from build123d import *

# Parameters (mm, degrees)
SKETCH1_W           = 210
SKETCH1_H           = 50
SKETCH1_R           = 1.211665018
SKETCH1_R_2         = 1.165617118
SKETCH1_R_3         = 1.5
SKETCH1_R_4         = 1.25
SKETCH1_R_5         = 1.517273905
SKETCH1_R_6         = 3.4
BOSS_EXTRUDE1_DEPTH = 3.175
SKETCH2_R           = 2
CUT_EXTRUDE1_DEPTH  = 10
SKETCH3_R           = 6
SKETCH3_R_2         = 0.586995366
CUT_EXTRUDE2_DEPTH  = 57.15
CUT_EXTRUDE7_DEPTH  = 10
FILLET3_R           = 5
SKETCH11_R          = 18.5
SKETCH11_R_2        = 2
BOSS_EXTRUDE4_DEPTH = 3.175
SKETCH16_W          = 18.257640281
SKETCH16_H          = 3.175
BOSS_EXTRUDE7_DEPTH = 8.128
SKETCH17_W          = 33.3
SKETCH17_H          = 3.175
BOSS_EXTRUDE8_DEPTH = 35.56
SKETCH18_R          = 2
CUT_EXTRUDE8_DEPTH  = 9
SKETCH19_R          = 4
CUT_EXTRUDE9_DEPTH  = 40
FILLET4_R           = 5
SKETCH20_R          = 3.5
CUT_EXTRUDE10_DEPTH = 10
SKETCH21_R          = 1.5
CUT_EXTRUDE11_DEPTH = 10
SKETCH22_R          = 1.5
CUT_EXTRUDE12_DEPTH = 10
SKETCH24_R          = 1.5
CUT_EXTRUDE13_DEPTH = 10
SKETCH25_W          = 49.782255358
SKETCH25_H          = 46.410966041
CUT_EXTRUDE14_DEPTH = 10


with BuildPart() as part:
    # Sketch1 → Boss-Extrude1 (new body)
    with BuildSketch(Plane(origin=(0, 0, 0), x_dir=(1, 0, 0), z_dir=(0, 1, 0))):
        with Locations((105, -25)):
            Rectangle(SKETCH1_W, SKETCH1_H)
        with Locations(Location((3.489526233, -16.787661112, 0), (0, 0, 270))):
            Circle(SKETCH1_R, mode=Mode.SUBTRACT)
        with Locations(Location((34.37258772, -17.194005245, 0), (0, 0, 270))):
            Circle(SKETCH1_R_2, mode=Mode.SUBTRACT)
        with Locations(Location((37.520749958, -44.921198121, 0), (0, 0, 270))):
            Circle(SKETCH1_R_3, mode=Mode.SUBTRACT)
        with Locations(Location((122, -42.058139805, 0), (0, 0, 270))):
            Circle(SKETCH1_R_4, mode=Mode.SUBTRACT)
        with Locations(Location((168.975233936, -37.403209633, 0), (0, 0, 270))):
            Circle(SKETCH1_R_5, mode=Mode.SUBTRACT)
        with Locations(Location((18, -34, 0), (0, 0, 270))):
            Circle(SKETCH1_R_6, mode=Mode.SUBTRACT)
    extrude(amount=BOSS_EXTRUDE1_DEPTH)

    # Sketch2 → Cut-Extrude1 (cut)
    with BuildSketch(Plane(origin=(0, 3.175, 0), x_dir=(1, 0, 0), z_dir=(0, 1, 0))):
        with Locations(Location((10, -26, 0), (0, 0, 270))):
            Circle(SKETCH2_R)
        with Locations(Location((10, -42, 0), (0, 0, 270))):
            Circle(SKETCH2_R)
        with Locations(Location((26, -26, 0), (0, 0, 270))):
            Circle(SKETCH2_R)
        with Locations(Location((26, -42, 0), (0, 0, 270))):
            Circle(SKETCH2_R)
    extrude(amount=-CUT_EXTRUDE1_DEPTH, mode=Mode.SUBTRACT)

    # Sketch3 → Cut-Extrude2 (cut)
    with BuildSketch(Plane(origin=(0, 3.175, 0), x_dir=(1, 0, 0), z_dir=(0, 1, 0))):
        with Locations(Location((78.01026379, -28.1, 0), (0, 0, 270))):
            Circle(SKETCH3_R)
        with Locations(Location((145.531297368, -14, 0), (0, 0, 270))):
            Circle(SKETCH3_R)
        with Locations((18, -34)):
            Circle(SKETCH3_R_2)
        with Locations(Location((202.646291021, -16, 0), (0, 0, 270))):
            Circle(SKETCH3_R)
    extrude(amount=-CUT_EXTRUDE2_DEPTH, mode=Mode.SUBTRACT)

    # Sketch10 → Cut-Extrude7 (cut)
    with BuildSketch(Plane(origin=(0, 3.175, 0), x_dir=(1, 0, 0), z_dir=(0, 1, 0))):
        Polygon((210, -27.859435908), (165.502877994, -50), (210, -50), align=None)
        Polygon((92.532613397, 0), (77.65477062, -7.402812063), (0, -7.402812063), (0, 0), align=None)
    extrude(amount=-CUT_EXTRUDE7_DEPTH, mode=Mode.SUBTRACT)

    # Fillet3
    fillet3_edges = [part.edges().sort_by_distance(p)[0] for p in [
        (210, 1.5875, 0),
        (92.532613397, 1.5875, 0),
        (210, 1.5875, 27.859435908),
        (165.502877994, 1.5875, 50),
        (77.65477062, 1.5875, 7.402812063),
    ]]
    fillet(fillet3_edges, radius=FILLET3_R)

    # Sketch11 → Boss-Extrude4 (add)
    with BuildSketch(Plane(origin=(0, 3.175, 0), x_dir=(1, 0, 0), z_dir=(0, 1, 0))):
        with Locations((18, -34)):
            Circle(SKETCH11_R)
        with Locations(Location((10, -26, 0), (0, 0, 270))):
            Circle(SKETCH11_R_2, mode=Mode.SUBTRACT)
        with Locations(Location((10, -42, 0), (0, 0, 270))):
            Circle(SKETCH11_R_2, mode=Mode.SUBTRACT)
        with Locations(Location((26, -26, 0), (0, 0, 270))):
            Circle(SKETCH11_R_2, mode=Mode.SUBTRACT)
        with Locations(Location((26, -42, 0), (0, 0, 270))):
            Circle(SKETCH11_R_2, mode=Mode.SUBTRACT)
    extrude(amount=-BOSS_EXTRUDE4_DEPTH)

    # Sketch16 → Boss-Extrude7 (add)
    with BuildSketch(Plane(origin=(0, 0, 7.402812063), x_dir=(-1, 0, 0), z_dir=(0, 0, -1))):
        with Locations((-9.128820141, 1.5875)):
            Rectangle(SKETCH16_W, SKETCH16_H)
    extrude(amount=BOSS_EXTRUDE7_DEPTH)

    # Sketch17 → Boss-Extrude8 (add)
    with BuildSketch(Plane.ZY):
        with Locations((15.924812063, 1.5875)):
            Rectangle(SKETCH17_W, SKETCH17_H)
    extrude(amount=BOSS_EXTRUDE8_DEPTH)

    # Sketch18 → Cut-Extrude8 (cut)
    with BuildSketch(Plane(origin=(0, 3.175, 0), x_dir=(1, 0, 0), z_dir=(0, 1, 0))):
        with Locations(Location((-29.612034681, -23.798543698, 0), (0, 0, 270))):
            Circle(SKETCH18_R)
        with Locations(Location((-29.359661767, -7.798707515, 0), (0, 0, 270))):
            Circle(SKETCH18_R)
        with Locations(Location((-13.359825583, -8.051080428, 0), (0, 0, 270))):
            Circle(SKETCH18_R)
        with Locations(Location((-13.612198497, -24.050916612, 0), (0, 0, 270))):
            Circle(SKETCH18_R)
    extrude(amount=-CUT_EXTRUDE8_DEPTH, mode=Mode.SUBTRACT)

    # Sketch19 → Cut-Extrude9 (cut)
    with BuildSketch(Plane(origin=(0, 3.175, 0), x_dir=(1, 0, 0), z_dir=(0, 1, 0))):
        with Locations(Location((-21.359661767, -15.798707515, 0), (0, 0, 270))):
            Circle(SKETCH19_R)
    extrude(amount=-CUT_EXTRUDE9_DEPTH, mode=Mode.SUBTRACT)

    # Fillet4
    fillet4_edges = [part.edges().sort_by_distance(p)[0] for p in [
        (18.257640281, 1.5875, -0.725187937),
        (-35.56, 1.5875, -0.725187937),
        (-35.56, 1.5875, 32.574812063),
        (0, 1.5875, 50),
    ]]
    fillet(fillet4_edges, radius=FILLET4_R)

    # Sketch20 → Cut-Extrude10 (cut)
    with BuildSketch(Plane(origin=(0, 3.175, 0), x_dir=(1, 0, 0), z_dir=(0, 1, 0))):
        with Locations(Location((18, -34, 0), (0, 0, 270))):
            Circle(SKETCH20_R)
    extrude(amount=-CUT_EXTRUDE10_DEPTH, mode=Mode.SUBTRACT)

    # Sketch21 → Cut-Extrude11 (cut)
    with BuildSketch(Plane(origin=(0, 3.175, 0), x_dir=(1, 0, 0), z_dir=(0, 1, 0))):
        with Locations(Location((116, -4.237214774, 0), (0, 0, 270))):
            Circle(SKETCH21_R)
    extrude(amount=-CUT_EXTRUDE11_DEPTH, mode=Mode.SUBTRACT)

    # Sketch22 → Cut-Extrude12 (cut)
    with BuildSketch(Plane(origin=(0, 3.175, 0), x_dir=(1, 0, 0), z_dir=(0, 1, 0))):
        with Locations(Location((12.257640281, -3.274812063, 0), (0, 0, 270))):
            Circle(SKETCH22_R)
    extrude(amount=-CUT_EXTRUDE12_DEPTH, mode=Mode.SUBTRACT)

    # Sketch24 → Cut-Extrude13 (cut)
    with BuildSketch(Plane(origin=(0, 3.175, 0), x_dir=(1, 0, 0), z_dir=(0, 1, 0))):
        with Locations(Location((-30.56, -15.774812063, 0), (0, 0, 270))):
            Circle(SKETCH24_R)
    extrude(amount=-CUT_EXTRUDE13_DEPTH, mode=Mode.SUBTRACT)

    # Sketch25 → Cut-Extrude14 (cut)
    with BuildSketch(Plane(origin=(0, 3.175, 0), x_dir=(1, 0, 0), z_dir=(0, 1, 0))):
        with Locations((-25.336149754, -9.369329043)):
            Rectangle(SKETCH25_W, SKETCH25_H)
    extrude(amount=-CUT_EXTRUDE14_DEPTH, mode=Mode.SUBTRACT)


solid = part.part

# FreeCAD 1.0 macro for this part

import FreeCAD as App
import Part
import Sketcher
from FreeCAD import Vector


def edges_at(feature, points):
    """Names of the edges that pass closest to the given points."""
    edges = feature.Shape.Edges
    near = lambda p: min(range(len(edges)), key=lambda i: edges[i].distToShape(Part.Vertex(*p))[0])
    return sorted({f"Edge{near(p) + 1}" for p in points})

doc = App.newDocument("Part")
body = doc.addObject("PartDesign::Body", "Body")

sketch1 = doc.addObject("Sketcher::SketchObject", "Sketch")
body.addObject(sketch1)
sketch1.AttachmentSupport = (doc.XZ_Plane, [""])
sketch1.MapMode = "FlatFace"
sketch1.addGeometry(Part.LineSegment(Vector(0, 0, 0), Vector(0, 50, 0)), False)
sketch1.addGeometry(Part.LineSegment(Vector(0, 50, 0), Vector(210, 50, 0)), False)
sketch1.addGeometry(Part.LineSegment(Vector(210, 50, 0), Vector(210, 0, 0)), False)
sketch1.addGeometry(Part.LineSegment(Vector(210, 0, 0), Vector(0, 0, 0)), False)
sketch1.addGeometry(Part.Circle(Vector(37.5, 44.9, 0), Vector(0, 0, 1), 1.5), False)
sketch1.addGeometry(Part.Circle(Vector(18, 34, 0), Vector(0, 0, 1), 3.4), False)
sketch1.addGeometry(Part.Circle(Vector(122, 42.1, 0), Vector(0, 0, 1), 1.2), False)
sketch1.addGeometry(Part.Circle(Vector(169, 37.4, 0), Vector(0, 0, 1), 1.5), False)
sketch1.addGeometry(Part.Circle(Vector(3.5, 16.8, 0), Vector(0, 0, 1), 1.2), False)
sketch1.addGeometry(Part.Circle(Vector(34.4, 17.2, 0), Vector(0, 0, 1), 1.2), False)
sketch1.addConstraint(Sketcher.Constraint("Coincident", 0, 2, 1, 1))
sketch1.addConstraint(Sketcher.Constraint("Coincident", 1, 2, 2, 1))
sketch1.addConstraint(Sketcher.Constraint("Coincident", 2, 2, 3, 1))
sketch1.addConstraint(Sketcher.Constraint("Coincident", 3, 2, 0, 1))
sketch1.addConstraint(Sketcher.Constraint("Vertical", 0))
sketch1.addConstraint(Sketcher.Constraint("Horizontal", 1))
sketch1.addConstraint(Sketcher.Constraint("Vertical", 2))
sketch1.addConstraint(Sketcher.Constraint("Horizontal", 3))
sketch1.addConstraint(Sketcher.Constraint("Coincident", 3, 2, -1, 1))
sketch1.addConstraint(Sketcher.Constraint("Diameter", 4, 3.0))
sketch1.addConstraint(Sketcher.Constraint("Diameter", 5, 6.8))
sketch1.addConstraint(Sketcher.Constraint("Diameter", 6, 2.5))
sketch1.addConstraint(Sketcher.Constraint("DistanceX", 1, 1, 1, 2, 210.0))
sketch1.addConstraint(Sketcher.Constraint("DistanceY", 0, 1, 0, 2, 50.0))
sketch1.addConstraint(Sketcher.Constraint("DistanceX", -1, 1, 5, 3, 18.0))
sketch1.addConstraint(Sketcher.Constraint("DistanceY", -1, 1, 5, 3, 34.0))
sketch1.addConstraint(Sketcher.Constraint("DistanceX", -1, 1, 6, 3, 122.0))
sketch1.addConstraint(Sketcher.Constraint("Diameter", 8, 2.42333))
sketch1.addConstraint(Sketcher.Constraint("Diameter", 7, 3.034548))
sketch1.addConstraint(Sketcher.Constraint("Diameter", 9, 2.331234))
sketch1.addConstraint(Sketcher.Constraint("DistanceY", -1, 1, 4, 3, 44.921198))
sketch1.addConstraint(Sketcher.Constraint("DistanceX", -1, 1, 4, 3, 37.52075))
sketch1.addConstraint(Sketcher.Constraint("DistanceY", -1, 1, 6, 3, 42.05814))
sketch1.addConstraint(Sketcher.Constraint("DistanceY", -1, 1, 7, 3, 37.40321))
sketch1.addConstraint(Sketcher.Constraint("DistanceY", -1, 1, 8, 3, 16.787661))
sketch1.addConstraint(Sketcher.Constraint("DistanceX", 8, 3, 9, 3, 30.883061))
sketch1.addConstraint(Sketcher.Constraint("DistanceX", -1, 1, 7, 3, 168.975234))
sketch1.addConstraint(Sketcher.Constraint("DistanceX", -1, 1, 8, 3, 3.489526))
sketch1.addConstraint(Sketcher.Constraint("DistanceY", -1, 1, 9, 3, 17.194005))
pad1 = doc.addObject("PartDesign::Pad", "Pad")
body.addObject(pad1)
pad1.Profile = sketch1
pad1.Length = 3.175
pad1.Reversed = True

sketch2 = doc.addObject("Sketcher::SketchObject", "Sketch001")
body.addObject(sketch2)
sketch2.AttachmentSupport = (doc.XZ_Plane, [""])
sketch2.MapMode = "FlatFace"
sketch2.AttachmentOffset = App.Placement(Vector(0, 0, -3.175), App.Rotation())
sketch2.addGeometry(Part.Circle(Vector(10, 26, 0), Vector(0, 0, 1), 2), False)
sketch2.addGeometry(Part.Circle(Vector(10, 42, 0), Vector(0, 0, 1), 2), False)
sketch2.addGeometry(Part.Circle(Vector(26, 26, 0), Vector(0, 0, 1), 2), False)
sketch2.addGeometry(Part.Circle(Vector(26, 42, 0), Vector(0, 0, 1), 2), False)
sketch2.addConstraint(Sketcher.Constraint("Equal", 0, 1))
sketch2.addConstraint(Sketcher.Constraint("Equal", 1, 2))
sketch2.addConstraint(Sketcher.Constraint("Equal", 2, 3))
sketch2.addConstraint(Sketcher.Constraint("Horizontal", 0, 3, 2, 3))
sketch2.addConstraint(Sketcher.Constraint("Horizontal", 1, 3, 3, 3))
sketch2.addConstraint(Sketcher.Constraint("Vertical", 0, 3, 1, 3))
sketch2.addConstraint(Sketcher.Constraint("Vertical", 2, 3, 3, 3))
sketch2.addConstraint(Sketcher.Constraint("Diameter", 0, 4.0))
sketch2.addConstraint(Sketcher.Constraint("DistanceX", -1, 1, 0, 3, 10.0))
sketch2.addConstraint(Sketcher.Constraint("DistanceY", -1, 1, 0, 3, 26.0))
sketch2.addConstraint(Sketcher.Constraint("DistanceY", -1, 1, 1, 3, 42.0))
sketch2.addConstraint(Sketcher.Constraint("DistanceX", -1, 1, 2, 3, 26.0))
pocket1 = doc.addObject("PartDesign::Pocket", "Pocket")
body.addObject(pocket1)
pocket1.Profile = sketch2
pocket1.Length = 10
pocket1.Reversed = True

sketch3 = doc.addObject("Sketcher::SketchObject", "Sketch002")
body.addObject(sketch3)
sketch3.AttachmentSupport = (doc.XZ_Plane, [""])
sketch3.MapMode = "FlatFace"
sketch3.AttachmentOffset = App.Placement(Vector(0, 0, -3.175), App.Rotation())
sketch3.addGeometry(Part.Circle(Vector(78, 28.1, 0), Vector(0, 0, 1), 6), False)
sketch3.addGeometry(Part.Circle(Vector(145.5, 14, 0), Vector(0, 0, 1), 6), False)
sketch3.addGeometry(Part.Circle(Vector(18, 34, 0), Vector(0, 0, 1), 0.6), False)
sketch3.addGeometry(Part.Circle(Vector(202.6, 16, 0), Vector(0, 0, 1), 6), False)
sketch3.addConstraint(Sketcher.Constraint("Equal", 0, 1))
sketch3.addConstraint(Sketcher.Constraint("Equal", 1, 3))
sketch3.addConstraint(Sketcher.Constraint("Diameter", 0, 12.0))
sketch3.addConstraint(Sketcher.Constraint("DistanceY", -1, 1, 1, 3, 14.0))
sketch3.addConstraint(Sketcher.Constraint("DistanceX", -1, 1, 2, 3, 18.0))
sketch3.addConstraint(Sketcher.Constraint("DistanceY", -1, 1, 2, 3, 34.0))
sketch3.addConstraint(Sketcher.Constraint("DistanceY", -1, 1, 3, 3, 16.0))
sketch3.addConstraint(Sketcher.Constraint("DistanceY", -1, 1, 0, 3, 28.1))
sketch3.addConstraint(Sketcher.Constraint("Diameter", 2, 1.173991))
sketch3.addConstraint(Sketcher.Constraint("DistanceX", -1, 1, 3, 3, 202.646291))
sketch3.addConstraint(Sketcher.Constraint("DistanceX", -1, 1, 0, 3, 78.010264))
sketch3.addConstraint(Sketcher.Constraint("DistanceX", -1, 1, 1, 3, 145.531297))
pocket2 = doc.addObject("PartDesign::Pocket", "Pocket001")
body.addObject(pocket2)
pocket2.Profile = sketch3
pocket2.Length = 57.15
pocket2.Reversed = True

sketch4 = doc.addObject("Sketcher::SketchObject", "Sketch003")
body.addObject(sketch4)
sketch4.AttachmentSupport = (doc.XZ_Plane, [""])
sketch4.MapMode = "FlatFace"
sketch4.AttachmentOffset = App.Placement(Vector(0, 0, -3.175), App.Rotation())
sketch4.addGeometry(Part.LineSegment(Vector(210, 28, 0), Vector(166, 50, 0)), False)
sketch4.addGeometry(Part.LineSegment(Vector(166, 50, 0), Vector(210, 50, 0)), False)
sketch4.addGeometry(Part.LineSegment(Vector(210, 50, 0), Vector(210, 28, 0)), False)
sketch4.addGeometry(Part.LineSegment(Vector(78, 7, 0), Vector(93, 0, 0)), False)
sketch4.addGeometry(Part.LineSegment(Vector(93, 0, 0), Vector(0, 0, 0)), False)
sketch4.addGeometry(Part.LineSegment(Vector(0, 0, 0), Vector(0, 7, 0)), False)
sketch4.addGeometry(Part.LineSegment(Vector(0, 7, 0), Vector(78, 7, 0)), False)
sketch4.addConstraint(Sketcher.Constraint("Coincident", 0, 2, 1, 1))
sketch4.addConstraint(Sketcher.Constraint("Coincident", 1, 2, 2, 1))
sketch4.addConstraint(Sketcher.Constraint("Coincident", 2, 2, 0, 1))
sketch4.addConstraint(Sketcher.Constraint("Coincident", 3, 2, 4, 1))
sketch4.addConstraint(Sketcher.Constraint("Coincident", 4, 2, 5, 1))
sketch4.addConstraint(Sketcher.Constraint("Coincident", 5, 2, 6, 1))
sketch4.addConstraint(Sketcher.Constraint("Coincident", 6, 2, 3, 1))
sketch4.addConstraint(Sketcher.Constraint("Horizontal", 1))
sketch4.addConstraint(Sketcher.Constraint("Vertical", 2))
sketch4.addConstraint(Sketcher.Constraint("Horizontal", 4))
sketch4.addConstraint(Sketcher.Constraint("Vertical", 5))
sketch4.addConstraint(Sketcher.Constraint("Horizontal", 6))
sketch4.addConstraint(Sketcher.Constraint("Coincident", 4, 2, -1, 1))
sketch4.addConstraint(Sketcher.Constraint("Parallel", 0, 3))
sketch4.addConstraint(Sketcher.Constraint("DistanceY", -1, 1, 0, 2, 50.0))
sketch4.addConstraint(Sketcher.Constraint("DistanceX", -1, 1, 1, 2, 210.0))
sketch4.addConstraint(Sketcher.Constraint("DistanceX", 6, 1, 6, 2, 77.654771))
sketch4.addConstraint(Sketcher.Constraint("Distance", 0, 49.701091))
sketch4.addConstraint(Sketcher.Constraint("DistanceX", 1, 1, 1, 2, 44.497122))
sketch4.addConstraint(Sketcher.Constraint("DistanceX", 4, 2, 4, 1, 92.532613))
pocket3 = doc.addObject("PartDesign::Pocket", "Pocket002")
body.addObject(pocket3)
pocket3.Profile = sketch4
pocket3.Length = 10
pocket3.Reversed = True
doc.recompute()

fillet = doc.addObject("PartDesign::Fillet", "Fillet")
body.addObject(fillet)
fillet.Base = (pocket3, edges_at(pocket3, [
    (210, 1.587, 0),
    (92.533, 1.587, 0),
    (210, 1.587, 27.859),
    (165.503, 1.587, 50),
    (77.655, 1.587, 7.403),
]))
fillet.Radius = 5

sketch5 = doc.addObject("Sketcher::SketchObject", "Sketch004")
body.addObject(sketch5)
sketch5.AttachmentSupport = (doc.XZ_Plane, [""])
sketch5.MapMode = "FlatFace"
sketch5.AttachmentOffset = App.Placement(Vector(0, 0, -3.175), App.Rotation())
sketch5.addGeometry(Part.Circle(Vector(18, 34, 0), Vector(0, 0, 1), 18.5), False)
sketch5.addGeometry(Part.Circle(Vector(10, 42, 0), Vector(0, 0, 1), 2), False)
sketch5.addGeometry(Part.Circle(Vector(26, 42, 0), Vector(0, 0, 1), 2), False)
sketch5.addGeometry(Part.Circle(Vector(10, 26, 0), Vector(0, 0, 1), 2), False)
sketch5.addGeometry(Part.Circle(Vector(26, 26, 0), Vector(0, 0, 1), 2), False)
sketch5.addConstraint(Sketcher.Constraint("Equal", 1, 2))
sketch5.addConstraint(Sketcher.Constraint("Equal", 2, 3))
sketch5.addConstraint(Sketcher.Constraint("Equal", 3, 4))
sketch5.addConstraint(Sketcher.Constraint("Horizontal", 1, 3, 2, 3))
sketch5.addConstraint(Sketcher.Constraint("Horizontal", 3, 3, 4, 3))
sketch5.addConstraint(Sketcher.Constraint("Vertical", 1, 3, 3, 3))
sketch5.addConstraint(Sketcher.Constraint("Vertical", 2, 3, 4, 3))
sketch5.addConstraint(Sketcher.Constraint("Diameter", 0, 37.0))
sketch5.addConstraint(Sketcher.Constraint("Diameter", 1, 4.0))
sketch5.addConstraint(Sketcher.Constraint("DistanceX", -1, 1, 0, 3, 18.0))
sketch5.addConstraint(Sketcher.Constraint("DistanceY", -1, 1, 0, 3, 34.0))
sketch5.addConstraint(Sketcher.Constraint("DistanceX", -1, 1, 1, 3, 10.0))
sketch5.addConstraint(Sketcher.Constraint("DistanceY", -1, 1, 1, 3, 42.0))
sketch5.addConstraint(Sketcher.Constraint("DistanceX", -1, 1, 2, 3, 26.0))
sketch5.addConstraint(Sketcher.Constraint("DistanceY", -1, 1, 3, 3, 26.0))
pad2 = doc.addObject("PartDesign::Pad", "Pad001")
body.addObject(pad2)
pad2.Profile = sketch5
pad2.Length = 3.175

sketch6 = doc.addObject("Sketcher::SketchObject", "Sketch005")
body.addObject(sketch6)
sketch6.AttachmentSupport = (doc.XY_Plane, [""])
sketch6.MapMode = "FlatFace"
sketch6.AttachmentOffset = App.Placement(Vector(0, 0, 7.402812), App.Rotation())
sketch6.addGeometry(Part.LineSegment(Vector(18.3, 3.2, 0), Vector(18.3, 0, 0)), False)
sketch6.addGeometry(Part.LineSegment(Vector(18.3, 0, 0), Vector(0, 0, 0)), False)
sketch6.addGeometry(Part.LineSegment(Vector(0, 0, 0), Vector(0, 3.2, 0)), False)
sketch6.addGeometry(Part.LineSegment(Vector(0, 3.2, 0), Vector(18.3, 3.2, 0)), False)
sketch6.addConstraint(Sketcher.Constraint("Coincident", 0, 2, 1, 1))
sketch6.addConstraint(Sketcher.Constraint("Coincident", 1, 2, 2, 1))
sketch6.addConstraint(Sketcher.Constraint("Coincident", 2, 2, 3, 1))
sketch6.addConstraint(Sketcher.Constraint("Coincident", 3, 2, 0, 1))
sketch6.addConstraint(Sketcher.Constraint("Vertical", 0))
sketch6.addConstraint(Sketcher.Constraint("Horizontal", 1))
sketch6.addConstraint(Sketcher.Constraint("Vertical", 2))
sketch6.addConstraint(Sketcher.Constraint("Horizontal", 3))
sketch6.addConstraint(Sketcher.Constraint("Coincident", 1, 2, -1, 1))
sketch6.addConstraint(Sketcher.Constraint("DistanceY", 0, 2, 0, 1, 3.175))
sketch6.addConstraint(Sketcher.Constraint("DistanceX", 1, 2, 1, 1, 18.25764))
pad3 = doc.addObject("PartDesign::Pad", "Pad002")
body.addObject(pad3)
pad3.Profile = sketch6
pad3.Length = 8.128
pad3.Reversed = True

sketch7 = doc.addObject("Sketcher::SketchObject", "Sketch006")
body.addObject(sketch7)
sketch7.AttachmentSupport = (doc.YZ_Plane, [""])
sketch7.MapMode = "FlatFace"
sketch7.addGeometry(Part.LineSegment(Vector(3.2, -0.7, 0), Vector(0, -0.7, 0)), False)
sketch7.addGeometry(Part.LineSegment(Vector(0, -0.7, 0), Vector(0, 32.6, 0)), False)
sketch7.addGeometry(Part.LineSegment(Vector(0, 32.6, 0), Vector(3.2, 32.6, 0)), False)
sketch7.addGeometry(Part.LineSegment(Vector(3.2, 32.6, 0), Vector(3.2, -0.7, 0)), False)
sketch7.addConstraint(Sketcher.Constraint("Coincident", 0, 2, 1, 1))
sketch7.addConstraint(Sketcher.Constraint("Coincident", 1, 2, 2, 1))
sketch7.addConstraint(Sketcher.Constraint("Coincident", 2, 2, 3, 1))
sketch7.addConstraint(Sketcher.Constraint("Coincident", 3, 2, 0, 1))
sketch7.addConstraint(Sketcher.Constraint("Horizontal", 0))
sketch7.addConstraint(Sketcher.Constraint("Vertical", 1))
sketch7.addConstraint(Sketcher.Constraint("Horizontal", 2))
sketch7.addConstraint(Sketcher.Constraint("Vertical", 3))
sketch7.addConstraint(Sketcher.Constraint("PointOnObject", 0, 2, -2))
sketch7.addConstraint(Sketcher.Constraint("DistanceY", 1, 1, 1, 2, 33.3))
sketch7.addConstraint(Sketcher.Constraint("DistanceX", 0, 2, 0, 1, 3.175))
sketch7.addConstraint(Sketcher.Constraint("DistanceY", 0, 2, -1, 1, 0.725188))
pad4 = doc.addObject("PartDesign::Pad", "Pad003")
body.addObject(pad4)
pad4.Profile = sketch7
pad4.Length = 35.56
pad4.Reversed = True

sketch8 = doc.addObject("Sketcher::SketchObject", "Sketch007")
body.addObject(sketch8)
sketch8.AttachmentSupport = (doc.XZ_Plane, [""])
sketch8.MapMode = "FlatFace"
sketch8.AttachmentOffset = App.Placement(Vector(0, 0, -3.175), App.Rotation())
sketch8.addGeometry(Part.Circle(Vector(-29.6, 23.8, 0), Vector(0, 0, 1), 2), False)
sketch8.addGeometry(Part.Circle(Vector(-29.4, 7.8, 0), Vector(0, 0, 1), 2), False)
sketch8.addGeometry(Part.Circle(Vector(-13.4, 8.1, 0), Vector(0, 0, 1), 2), False)
sketch8.addGeometry(Part.Circle(Vector(-13.6, 24.1, 0), Vector(0, 0, 1), 2), False)
sketch8.addConstraint(Sketcher.Constraint("Equal", 0, 1))
sketch8.addConstraint(Sketcher.Constraint("Equal", 1, 2))
sketch8.addConstraint(Sketcher.Constraint("Equal", 2, 3))
sketch8.addConstraint(Sketcher.Constraint("Diameter", 0, 4.0))
sketch8.addConstraint(Sketcher.Constraint("DistanceX", 3, 3, -1, 1, 13.612198))
sketch8.addConstraint(Sketcher.Constraint("DistanceX", 1, 3, -1, 1, 29.359662))
sketch8.addConstraint(Sketcher.Constraint("DistanceY", -1, 1, 2, 3, 8.05108))
sketch8.addConstraint(Sketcher.Constraint("DistanceX", 0, 3, 2, 3, 16.252209))
sketch8.addConstraint(Sketcher.Constraint("DistanceY", 1, 3, 3, 3, 16.252209))
sketch8.addConstraint(Sketcher.Constraint("DistanceX", 0, 3, -1, 1, 29.612035))
sketch8.addConstraint(Sketcher.Constraint("DistanceY", -1, 1, 0, 3, 23.798544))
sketch8.addConstraint(Sketcher.Constraint("DistanceY", -1, 1, 1, 3, 7.798708))
pocket4 = doc.addObject("PartDesign::Pocket", "Pocket003")
body.addObject(pocket4)
pocket4.Profile = sketch8
pocket4.Length = 9
pocket4.Reversed = True

sketch9 = doc.addObject("Sketcher::SketchObject", "Sketch008")
body.addObject(sketch9)
sketch9.AttachmentSupport = (doc.XZ_Plane, [""])
sketch9.MapMode = "FlatFace"
sketch9.AttachmentOffset = App.Placement(Vector(0, 0, -3.175), App.Rotation())
sketch9.addGeometry(Part.Circle(Vector(-21.4, 15.8, 0), Vector(0, 0, 1), 4), False)
sketch9.addConstraint(Sketcher.Constraint("Diameter", 0, 8.0))
sketch9.addConstraint(Sketcher.Constraint("DistanceX", 0, 3, -1, 1, 21.359662))
sketch9.addConstraint(Sketcher.Constraint("DistanceY", -1, 1, 0, 3, 15.798708))
pocket5 = doc.addObject("PartDesign::Pocket", "Pocket004")
body.addObject(pocket5)
pocket5.Profile = sketch9
pocket5.Length = 40
pocket5.Reversed = True
doc.recompute()

fillet2 = doc.addObject("PartDesign::Fillet", "Fillet001")
body.addObject(fillet2)
fillet2.Base = (pocket5, edges_at(pocket5, [
    (18.258, 1.587, -0.725),
    (-35.56, 1.587, -0.725),
    (-35.56, 1.587, 32.575),
    (0, 1.587, 50),
]))
fillet2.Radius = 5

sketch10 = doc.addObject("Sketcher::SketchObject", "Sketch009")
body.addObject(sketch10)
sketch10.AttachmentSupport = (doc.XZ_Plane, [""])
sketch10.MapMode = "FlatFace"
sketch10.AttachmentOffset = App.Placement(Vector(0, 0, -3.175), App.Rotation())
sketch10.addGeometry(Part.Circle(Vector(18, 34, 0), Vector(0, 0, 1), 3.5), False)
sketch10.addConstraint(Sketcher.Constraint("Diameter", 0, 7.0))
sketch10.addConstraint(Sketcher.Constraint("DistanceX", -1, 1, 0, 3, 18.0))
sketch10.addConstraint(Sketcher.Constraint("DistanceY", -1, 1, 0, 3, 34.0))
pocket6 = doc.addObject("PartDesign::Pocket", "Pocket005")
body.addObject(pocket6)
pocket6.Profile = sketch10
pocket6.Length = 10
pocket6.Reversed = True

sketch11 = doc.addObject("Sketcher::SketchObject", "Sketch010")
body.addObject(sketch11)
sketch11.AttachmentSupport = (doc.XZ_Plane, [""])
sketch11.MapMode = "FlatFace"
sketch11.AttachmentOffset = App.Placement(Vector(0, 0, -3.175), App.Rotation())
sketch11.addGeometry(Part.Circle(Vector(116, 4.2, 0), Vector(0, 0, 1), 1.5), False)
sketch11.addConstraint(Sketcher.Constraint("Diameter", 0, 3.0))
sketch11.addConstraint(Sketcher.Constraint("DistanceX", -1, 1, 0, 3, 116.0))
sketch11.addConstraint(Sketcher.Constraint("DistanceY", -1, 1, 0, 3, 4.237215))
pocket7 = doc.addObject("PartDesign::Pocket", "Pocket006")
body.addObject(pocket7)
pocket7.Profile = sketch11
pocket7.Length = 10
pocket7.Reversed = True

sketch12 = doc.addObject("Sketcher::SketchObject", "Sketch011")
body.addObject(sketch12)
sketch12.AttachmentSupport = (doc.XZ_Plane, [""])
sketch12.MapMode = "FlatFace"
sketch12.AttachmentOffset = App.Placement(Vector(0, 0, -3.175), App.Rotation())
sketch12.addGeometry(Part.Circle(Vector(12.3, 3.3, 0), Vector(0, 0, 1), 1.5), False)
sketch12.addConstraint(Sketcher.Constraint("Diameter", 0, 3.0))
sketch12.addConstraint(Sketcher.Constraint("DistanceX", -1, 1, 0, 3, 12.25764))
sketch12.addConstraint(Sketcher.Constraint("DistanceY", -1, 1, 0, 3, 3.274812))
pocket8 = doc.addObject("PartDesign::Pocket", "Pocket007")
body.addObject(pocket8)
pocket8.Profile = sketch12
pocket8.Length = 10
pocket8.Reversed = True

sketch13 = doc.addObject("Sketcher::SketchObject", "Sketch012")
body.addObject(sketch13)
sketch13.AttachmentSupport = (doc.XZ_Plane, [""])
sketch13.MapMode = "FlatFace"
sketch13.AttachmentOffset = App.Placement(Vector(0, 0, -3.175), App.Rotation())
sketch13.addGeometry(Part.Circle(Vector(-30.6, 15.8, 0), Vector(0, 0, 1), 1.5), False)
sketch13.addConstraint(Sketcher.Constraint("Diameter", 0, 3.0))
sketch13.addConstraint(Sketcher.Constraint("DistanceX", 0, 3, -1, 1, 30.56))
sketch13.addConstraint(Sketcher.Constraint("DistanceY", -1, 1, 0, 3, 15.774812))
pocket9 = doc.addObject("PartDesign::Pocket", "Pocket008")
body.addObject(pocket9)
pocket9.Profile = sketch13
pocket9.Length = 10
pocket9.Reversed = True

sketch14 = doc.addObject("Sketcher::SketchObject", "Sketch013")
body.addObject(sketch14)
sketch14.AttachmentSupport = (doc.XZ_Plane, [""])
sketch14.MapMode = "FlatFace"
sketch14.AttachmentOffset = App.Placement(Vector(0, 0, -3.175), App.Rotation())
sketch14.addGeometry(Part.LineSegment(Vector(-50, -14, 0), Vector(-50, 33, 0)), False)
sketch14.addGeometry(Part.LineSegment(Vector(-50, 33, 0), Vector(0, 33, 0)), False)
sketch14.addGeometry(Part.LineSegment(Vector(0, 33, 0), Vector(0, -14, 0)), False)
sketch14.addGeometry(Part.LineSegment(Vector(0, -14, 0), Vector(-50, -14, 0)), False)
sketch14.addConstraint(Sketcher.Constraint("Coincident", 0, 2, 1, 1))
sketch14.addConstraint(Sketcher.Constraint("Coincident", 1, 2, 2, 1))
sketch14.addConstraint(Sketcher.Constraint("Coincident", 2, 2, 3, 1))
sketch14.addConstraint(Sketcher.Constraint("Coincident", 3, 2, 0, 1))
sketch14.addConstraint(Sketcher.Constraint("Vertical", 0))
sketch14.addConstraint(Sketcher.Constraint("Horizontal", 1))
sketch14.addConstraint(Sketcher.Constraint("Vertical", 2))
sketch14.addConstraint(Sketcher.Constraint("Horizontal", 3))
sketch14.addConstraint(Sketcher.Constraint("DistanceX", 1, 1, 1, 2, 49.782255))
sketch14.addConstraint(Sketcher.Constraint("DistanceY", 0, 1, 0, 2, 46.410966))
sketch14.addConstraint(Sketcher.Constraint("DistanceX", 0, 2, -1, 1, 50.227277))
sketch14.addConstraint(Sketcher.Constraint("DistanceY", -1, 1, 0, 2, 32.574812))
pocket10 = doc.addObject("PartDesign::Pocket", "Pocket009")
body.addObject(pocket10)
pocket10.Profile = sketch14
pocket10.Length = 10
pocket10.Reversed = True

doc.recompute()
